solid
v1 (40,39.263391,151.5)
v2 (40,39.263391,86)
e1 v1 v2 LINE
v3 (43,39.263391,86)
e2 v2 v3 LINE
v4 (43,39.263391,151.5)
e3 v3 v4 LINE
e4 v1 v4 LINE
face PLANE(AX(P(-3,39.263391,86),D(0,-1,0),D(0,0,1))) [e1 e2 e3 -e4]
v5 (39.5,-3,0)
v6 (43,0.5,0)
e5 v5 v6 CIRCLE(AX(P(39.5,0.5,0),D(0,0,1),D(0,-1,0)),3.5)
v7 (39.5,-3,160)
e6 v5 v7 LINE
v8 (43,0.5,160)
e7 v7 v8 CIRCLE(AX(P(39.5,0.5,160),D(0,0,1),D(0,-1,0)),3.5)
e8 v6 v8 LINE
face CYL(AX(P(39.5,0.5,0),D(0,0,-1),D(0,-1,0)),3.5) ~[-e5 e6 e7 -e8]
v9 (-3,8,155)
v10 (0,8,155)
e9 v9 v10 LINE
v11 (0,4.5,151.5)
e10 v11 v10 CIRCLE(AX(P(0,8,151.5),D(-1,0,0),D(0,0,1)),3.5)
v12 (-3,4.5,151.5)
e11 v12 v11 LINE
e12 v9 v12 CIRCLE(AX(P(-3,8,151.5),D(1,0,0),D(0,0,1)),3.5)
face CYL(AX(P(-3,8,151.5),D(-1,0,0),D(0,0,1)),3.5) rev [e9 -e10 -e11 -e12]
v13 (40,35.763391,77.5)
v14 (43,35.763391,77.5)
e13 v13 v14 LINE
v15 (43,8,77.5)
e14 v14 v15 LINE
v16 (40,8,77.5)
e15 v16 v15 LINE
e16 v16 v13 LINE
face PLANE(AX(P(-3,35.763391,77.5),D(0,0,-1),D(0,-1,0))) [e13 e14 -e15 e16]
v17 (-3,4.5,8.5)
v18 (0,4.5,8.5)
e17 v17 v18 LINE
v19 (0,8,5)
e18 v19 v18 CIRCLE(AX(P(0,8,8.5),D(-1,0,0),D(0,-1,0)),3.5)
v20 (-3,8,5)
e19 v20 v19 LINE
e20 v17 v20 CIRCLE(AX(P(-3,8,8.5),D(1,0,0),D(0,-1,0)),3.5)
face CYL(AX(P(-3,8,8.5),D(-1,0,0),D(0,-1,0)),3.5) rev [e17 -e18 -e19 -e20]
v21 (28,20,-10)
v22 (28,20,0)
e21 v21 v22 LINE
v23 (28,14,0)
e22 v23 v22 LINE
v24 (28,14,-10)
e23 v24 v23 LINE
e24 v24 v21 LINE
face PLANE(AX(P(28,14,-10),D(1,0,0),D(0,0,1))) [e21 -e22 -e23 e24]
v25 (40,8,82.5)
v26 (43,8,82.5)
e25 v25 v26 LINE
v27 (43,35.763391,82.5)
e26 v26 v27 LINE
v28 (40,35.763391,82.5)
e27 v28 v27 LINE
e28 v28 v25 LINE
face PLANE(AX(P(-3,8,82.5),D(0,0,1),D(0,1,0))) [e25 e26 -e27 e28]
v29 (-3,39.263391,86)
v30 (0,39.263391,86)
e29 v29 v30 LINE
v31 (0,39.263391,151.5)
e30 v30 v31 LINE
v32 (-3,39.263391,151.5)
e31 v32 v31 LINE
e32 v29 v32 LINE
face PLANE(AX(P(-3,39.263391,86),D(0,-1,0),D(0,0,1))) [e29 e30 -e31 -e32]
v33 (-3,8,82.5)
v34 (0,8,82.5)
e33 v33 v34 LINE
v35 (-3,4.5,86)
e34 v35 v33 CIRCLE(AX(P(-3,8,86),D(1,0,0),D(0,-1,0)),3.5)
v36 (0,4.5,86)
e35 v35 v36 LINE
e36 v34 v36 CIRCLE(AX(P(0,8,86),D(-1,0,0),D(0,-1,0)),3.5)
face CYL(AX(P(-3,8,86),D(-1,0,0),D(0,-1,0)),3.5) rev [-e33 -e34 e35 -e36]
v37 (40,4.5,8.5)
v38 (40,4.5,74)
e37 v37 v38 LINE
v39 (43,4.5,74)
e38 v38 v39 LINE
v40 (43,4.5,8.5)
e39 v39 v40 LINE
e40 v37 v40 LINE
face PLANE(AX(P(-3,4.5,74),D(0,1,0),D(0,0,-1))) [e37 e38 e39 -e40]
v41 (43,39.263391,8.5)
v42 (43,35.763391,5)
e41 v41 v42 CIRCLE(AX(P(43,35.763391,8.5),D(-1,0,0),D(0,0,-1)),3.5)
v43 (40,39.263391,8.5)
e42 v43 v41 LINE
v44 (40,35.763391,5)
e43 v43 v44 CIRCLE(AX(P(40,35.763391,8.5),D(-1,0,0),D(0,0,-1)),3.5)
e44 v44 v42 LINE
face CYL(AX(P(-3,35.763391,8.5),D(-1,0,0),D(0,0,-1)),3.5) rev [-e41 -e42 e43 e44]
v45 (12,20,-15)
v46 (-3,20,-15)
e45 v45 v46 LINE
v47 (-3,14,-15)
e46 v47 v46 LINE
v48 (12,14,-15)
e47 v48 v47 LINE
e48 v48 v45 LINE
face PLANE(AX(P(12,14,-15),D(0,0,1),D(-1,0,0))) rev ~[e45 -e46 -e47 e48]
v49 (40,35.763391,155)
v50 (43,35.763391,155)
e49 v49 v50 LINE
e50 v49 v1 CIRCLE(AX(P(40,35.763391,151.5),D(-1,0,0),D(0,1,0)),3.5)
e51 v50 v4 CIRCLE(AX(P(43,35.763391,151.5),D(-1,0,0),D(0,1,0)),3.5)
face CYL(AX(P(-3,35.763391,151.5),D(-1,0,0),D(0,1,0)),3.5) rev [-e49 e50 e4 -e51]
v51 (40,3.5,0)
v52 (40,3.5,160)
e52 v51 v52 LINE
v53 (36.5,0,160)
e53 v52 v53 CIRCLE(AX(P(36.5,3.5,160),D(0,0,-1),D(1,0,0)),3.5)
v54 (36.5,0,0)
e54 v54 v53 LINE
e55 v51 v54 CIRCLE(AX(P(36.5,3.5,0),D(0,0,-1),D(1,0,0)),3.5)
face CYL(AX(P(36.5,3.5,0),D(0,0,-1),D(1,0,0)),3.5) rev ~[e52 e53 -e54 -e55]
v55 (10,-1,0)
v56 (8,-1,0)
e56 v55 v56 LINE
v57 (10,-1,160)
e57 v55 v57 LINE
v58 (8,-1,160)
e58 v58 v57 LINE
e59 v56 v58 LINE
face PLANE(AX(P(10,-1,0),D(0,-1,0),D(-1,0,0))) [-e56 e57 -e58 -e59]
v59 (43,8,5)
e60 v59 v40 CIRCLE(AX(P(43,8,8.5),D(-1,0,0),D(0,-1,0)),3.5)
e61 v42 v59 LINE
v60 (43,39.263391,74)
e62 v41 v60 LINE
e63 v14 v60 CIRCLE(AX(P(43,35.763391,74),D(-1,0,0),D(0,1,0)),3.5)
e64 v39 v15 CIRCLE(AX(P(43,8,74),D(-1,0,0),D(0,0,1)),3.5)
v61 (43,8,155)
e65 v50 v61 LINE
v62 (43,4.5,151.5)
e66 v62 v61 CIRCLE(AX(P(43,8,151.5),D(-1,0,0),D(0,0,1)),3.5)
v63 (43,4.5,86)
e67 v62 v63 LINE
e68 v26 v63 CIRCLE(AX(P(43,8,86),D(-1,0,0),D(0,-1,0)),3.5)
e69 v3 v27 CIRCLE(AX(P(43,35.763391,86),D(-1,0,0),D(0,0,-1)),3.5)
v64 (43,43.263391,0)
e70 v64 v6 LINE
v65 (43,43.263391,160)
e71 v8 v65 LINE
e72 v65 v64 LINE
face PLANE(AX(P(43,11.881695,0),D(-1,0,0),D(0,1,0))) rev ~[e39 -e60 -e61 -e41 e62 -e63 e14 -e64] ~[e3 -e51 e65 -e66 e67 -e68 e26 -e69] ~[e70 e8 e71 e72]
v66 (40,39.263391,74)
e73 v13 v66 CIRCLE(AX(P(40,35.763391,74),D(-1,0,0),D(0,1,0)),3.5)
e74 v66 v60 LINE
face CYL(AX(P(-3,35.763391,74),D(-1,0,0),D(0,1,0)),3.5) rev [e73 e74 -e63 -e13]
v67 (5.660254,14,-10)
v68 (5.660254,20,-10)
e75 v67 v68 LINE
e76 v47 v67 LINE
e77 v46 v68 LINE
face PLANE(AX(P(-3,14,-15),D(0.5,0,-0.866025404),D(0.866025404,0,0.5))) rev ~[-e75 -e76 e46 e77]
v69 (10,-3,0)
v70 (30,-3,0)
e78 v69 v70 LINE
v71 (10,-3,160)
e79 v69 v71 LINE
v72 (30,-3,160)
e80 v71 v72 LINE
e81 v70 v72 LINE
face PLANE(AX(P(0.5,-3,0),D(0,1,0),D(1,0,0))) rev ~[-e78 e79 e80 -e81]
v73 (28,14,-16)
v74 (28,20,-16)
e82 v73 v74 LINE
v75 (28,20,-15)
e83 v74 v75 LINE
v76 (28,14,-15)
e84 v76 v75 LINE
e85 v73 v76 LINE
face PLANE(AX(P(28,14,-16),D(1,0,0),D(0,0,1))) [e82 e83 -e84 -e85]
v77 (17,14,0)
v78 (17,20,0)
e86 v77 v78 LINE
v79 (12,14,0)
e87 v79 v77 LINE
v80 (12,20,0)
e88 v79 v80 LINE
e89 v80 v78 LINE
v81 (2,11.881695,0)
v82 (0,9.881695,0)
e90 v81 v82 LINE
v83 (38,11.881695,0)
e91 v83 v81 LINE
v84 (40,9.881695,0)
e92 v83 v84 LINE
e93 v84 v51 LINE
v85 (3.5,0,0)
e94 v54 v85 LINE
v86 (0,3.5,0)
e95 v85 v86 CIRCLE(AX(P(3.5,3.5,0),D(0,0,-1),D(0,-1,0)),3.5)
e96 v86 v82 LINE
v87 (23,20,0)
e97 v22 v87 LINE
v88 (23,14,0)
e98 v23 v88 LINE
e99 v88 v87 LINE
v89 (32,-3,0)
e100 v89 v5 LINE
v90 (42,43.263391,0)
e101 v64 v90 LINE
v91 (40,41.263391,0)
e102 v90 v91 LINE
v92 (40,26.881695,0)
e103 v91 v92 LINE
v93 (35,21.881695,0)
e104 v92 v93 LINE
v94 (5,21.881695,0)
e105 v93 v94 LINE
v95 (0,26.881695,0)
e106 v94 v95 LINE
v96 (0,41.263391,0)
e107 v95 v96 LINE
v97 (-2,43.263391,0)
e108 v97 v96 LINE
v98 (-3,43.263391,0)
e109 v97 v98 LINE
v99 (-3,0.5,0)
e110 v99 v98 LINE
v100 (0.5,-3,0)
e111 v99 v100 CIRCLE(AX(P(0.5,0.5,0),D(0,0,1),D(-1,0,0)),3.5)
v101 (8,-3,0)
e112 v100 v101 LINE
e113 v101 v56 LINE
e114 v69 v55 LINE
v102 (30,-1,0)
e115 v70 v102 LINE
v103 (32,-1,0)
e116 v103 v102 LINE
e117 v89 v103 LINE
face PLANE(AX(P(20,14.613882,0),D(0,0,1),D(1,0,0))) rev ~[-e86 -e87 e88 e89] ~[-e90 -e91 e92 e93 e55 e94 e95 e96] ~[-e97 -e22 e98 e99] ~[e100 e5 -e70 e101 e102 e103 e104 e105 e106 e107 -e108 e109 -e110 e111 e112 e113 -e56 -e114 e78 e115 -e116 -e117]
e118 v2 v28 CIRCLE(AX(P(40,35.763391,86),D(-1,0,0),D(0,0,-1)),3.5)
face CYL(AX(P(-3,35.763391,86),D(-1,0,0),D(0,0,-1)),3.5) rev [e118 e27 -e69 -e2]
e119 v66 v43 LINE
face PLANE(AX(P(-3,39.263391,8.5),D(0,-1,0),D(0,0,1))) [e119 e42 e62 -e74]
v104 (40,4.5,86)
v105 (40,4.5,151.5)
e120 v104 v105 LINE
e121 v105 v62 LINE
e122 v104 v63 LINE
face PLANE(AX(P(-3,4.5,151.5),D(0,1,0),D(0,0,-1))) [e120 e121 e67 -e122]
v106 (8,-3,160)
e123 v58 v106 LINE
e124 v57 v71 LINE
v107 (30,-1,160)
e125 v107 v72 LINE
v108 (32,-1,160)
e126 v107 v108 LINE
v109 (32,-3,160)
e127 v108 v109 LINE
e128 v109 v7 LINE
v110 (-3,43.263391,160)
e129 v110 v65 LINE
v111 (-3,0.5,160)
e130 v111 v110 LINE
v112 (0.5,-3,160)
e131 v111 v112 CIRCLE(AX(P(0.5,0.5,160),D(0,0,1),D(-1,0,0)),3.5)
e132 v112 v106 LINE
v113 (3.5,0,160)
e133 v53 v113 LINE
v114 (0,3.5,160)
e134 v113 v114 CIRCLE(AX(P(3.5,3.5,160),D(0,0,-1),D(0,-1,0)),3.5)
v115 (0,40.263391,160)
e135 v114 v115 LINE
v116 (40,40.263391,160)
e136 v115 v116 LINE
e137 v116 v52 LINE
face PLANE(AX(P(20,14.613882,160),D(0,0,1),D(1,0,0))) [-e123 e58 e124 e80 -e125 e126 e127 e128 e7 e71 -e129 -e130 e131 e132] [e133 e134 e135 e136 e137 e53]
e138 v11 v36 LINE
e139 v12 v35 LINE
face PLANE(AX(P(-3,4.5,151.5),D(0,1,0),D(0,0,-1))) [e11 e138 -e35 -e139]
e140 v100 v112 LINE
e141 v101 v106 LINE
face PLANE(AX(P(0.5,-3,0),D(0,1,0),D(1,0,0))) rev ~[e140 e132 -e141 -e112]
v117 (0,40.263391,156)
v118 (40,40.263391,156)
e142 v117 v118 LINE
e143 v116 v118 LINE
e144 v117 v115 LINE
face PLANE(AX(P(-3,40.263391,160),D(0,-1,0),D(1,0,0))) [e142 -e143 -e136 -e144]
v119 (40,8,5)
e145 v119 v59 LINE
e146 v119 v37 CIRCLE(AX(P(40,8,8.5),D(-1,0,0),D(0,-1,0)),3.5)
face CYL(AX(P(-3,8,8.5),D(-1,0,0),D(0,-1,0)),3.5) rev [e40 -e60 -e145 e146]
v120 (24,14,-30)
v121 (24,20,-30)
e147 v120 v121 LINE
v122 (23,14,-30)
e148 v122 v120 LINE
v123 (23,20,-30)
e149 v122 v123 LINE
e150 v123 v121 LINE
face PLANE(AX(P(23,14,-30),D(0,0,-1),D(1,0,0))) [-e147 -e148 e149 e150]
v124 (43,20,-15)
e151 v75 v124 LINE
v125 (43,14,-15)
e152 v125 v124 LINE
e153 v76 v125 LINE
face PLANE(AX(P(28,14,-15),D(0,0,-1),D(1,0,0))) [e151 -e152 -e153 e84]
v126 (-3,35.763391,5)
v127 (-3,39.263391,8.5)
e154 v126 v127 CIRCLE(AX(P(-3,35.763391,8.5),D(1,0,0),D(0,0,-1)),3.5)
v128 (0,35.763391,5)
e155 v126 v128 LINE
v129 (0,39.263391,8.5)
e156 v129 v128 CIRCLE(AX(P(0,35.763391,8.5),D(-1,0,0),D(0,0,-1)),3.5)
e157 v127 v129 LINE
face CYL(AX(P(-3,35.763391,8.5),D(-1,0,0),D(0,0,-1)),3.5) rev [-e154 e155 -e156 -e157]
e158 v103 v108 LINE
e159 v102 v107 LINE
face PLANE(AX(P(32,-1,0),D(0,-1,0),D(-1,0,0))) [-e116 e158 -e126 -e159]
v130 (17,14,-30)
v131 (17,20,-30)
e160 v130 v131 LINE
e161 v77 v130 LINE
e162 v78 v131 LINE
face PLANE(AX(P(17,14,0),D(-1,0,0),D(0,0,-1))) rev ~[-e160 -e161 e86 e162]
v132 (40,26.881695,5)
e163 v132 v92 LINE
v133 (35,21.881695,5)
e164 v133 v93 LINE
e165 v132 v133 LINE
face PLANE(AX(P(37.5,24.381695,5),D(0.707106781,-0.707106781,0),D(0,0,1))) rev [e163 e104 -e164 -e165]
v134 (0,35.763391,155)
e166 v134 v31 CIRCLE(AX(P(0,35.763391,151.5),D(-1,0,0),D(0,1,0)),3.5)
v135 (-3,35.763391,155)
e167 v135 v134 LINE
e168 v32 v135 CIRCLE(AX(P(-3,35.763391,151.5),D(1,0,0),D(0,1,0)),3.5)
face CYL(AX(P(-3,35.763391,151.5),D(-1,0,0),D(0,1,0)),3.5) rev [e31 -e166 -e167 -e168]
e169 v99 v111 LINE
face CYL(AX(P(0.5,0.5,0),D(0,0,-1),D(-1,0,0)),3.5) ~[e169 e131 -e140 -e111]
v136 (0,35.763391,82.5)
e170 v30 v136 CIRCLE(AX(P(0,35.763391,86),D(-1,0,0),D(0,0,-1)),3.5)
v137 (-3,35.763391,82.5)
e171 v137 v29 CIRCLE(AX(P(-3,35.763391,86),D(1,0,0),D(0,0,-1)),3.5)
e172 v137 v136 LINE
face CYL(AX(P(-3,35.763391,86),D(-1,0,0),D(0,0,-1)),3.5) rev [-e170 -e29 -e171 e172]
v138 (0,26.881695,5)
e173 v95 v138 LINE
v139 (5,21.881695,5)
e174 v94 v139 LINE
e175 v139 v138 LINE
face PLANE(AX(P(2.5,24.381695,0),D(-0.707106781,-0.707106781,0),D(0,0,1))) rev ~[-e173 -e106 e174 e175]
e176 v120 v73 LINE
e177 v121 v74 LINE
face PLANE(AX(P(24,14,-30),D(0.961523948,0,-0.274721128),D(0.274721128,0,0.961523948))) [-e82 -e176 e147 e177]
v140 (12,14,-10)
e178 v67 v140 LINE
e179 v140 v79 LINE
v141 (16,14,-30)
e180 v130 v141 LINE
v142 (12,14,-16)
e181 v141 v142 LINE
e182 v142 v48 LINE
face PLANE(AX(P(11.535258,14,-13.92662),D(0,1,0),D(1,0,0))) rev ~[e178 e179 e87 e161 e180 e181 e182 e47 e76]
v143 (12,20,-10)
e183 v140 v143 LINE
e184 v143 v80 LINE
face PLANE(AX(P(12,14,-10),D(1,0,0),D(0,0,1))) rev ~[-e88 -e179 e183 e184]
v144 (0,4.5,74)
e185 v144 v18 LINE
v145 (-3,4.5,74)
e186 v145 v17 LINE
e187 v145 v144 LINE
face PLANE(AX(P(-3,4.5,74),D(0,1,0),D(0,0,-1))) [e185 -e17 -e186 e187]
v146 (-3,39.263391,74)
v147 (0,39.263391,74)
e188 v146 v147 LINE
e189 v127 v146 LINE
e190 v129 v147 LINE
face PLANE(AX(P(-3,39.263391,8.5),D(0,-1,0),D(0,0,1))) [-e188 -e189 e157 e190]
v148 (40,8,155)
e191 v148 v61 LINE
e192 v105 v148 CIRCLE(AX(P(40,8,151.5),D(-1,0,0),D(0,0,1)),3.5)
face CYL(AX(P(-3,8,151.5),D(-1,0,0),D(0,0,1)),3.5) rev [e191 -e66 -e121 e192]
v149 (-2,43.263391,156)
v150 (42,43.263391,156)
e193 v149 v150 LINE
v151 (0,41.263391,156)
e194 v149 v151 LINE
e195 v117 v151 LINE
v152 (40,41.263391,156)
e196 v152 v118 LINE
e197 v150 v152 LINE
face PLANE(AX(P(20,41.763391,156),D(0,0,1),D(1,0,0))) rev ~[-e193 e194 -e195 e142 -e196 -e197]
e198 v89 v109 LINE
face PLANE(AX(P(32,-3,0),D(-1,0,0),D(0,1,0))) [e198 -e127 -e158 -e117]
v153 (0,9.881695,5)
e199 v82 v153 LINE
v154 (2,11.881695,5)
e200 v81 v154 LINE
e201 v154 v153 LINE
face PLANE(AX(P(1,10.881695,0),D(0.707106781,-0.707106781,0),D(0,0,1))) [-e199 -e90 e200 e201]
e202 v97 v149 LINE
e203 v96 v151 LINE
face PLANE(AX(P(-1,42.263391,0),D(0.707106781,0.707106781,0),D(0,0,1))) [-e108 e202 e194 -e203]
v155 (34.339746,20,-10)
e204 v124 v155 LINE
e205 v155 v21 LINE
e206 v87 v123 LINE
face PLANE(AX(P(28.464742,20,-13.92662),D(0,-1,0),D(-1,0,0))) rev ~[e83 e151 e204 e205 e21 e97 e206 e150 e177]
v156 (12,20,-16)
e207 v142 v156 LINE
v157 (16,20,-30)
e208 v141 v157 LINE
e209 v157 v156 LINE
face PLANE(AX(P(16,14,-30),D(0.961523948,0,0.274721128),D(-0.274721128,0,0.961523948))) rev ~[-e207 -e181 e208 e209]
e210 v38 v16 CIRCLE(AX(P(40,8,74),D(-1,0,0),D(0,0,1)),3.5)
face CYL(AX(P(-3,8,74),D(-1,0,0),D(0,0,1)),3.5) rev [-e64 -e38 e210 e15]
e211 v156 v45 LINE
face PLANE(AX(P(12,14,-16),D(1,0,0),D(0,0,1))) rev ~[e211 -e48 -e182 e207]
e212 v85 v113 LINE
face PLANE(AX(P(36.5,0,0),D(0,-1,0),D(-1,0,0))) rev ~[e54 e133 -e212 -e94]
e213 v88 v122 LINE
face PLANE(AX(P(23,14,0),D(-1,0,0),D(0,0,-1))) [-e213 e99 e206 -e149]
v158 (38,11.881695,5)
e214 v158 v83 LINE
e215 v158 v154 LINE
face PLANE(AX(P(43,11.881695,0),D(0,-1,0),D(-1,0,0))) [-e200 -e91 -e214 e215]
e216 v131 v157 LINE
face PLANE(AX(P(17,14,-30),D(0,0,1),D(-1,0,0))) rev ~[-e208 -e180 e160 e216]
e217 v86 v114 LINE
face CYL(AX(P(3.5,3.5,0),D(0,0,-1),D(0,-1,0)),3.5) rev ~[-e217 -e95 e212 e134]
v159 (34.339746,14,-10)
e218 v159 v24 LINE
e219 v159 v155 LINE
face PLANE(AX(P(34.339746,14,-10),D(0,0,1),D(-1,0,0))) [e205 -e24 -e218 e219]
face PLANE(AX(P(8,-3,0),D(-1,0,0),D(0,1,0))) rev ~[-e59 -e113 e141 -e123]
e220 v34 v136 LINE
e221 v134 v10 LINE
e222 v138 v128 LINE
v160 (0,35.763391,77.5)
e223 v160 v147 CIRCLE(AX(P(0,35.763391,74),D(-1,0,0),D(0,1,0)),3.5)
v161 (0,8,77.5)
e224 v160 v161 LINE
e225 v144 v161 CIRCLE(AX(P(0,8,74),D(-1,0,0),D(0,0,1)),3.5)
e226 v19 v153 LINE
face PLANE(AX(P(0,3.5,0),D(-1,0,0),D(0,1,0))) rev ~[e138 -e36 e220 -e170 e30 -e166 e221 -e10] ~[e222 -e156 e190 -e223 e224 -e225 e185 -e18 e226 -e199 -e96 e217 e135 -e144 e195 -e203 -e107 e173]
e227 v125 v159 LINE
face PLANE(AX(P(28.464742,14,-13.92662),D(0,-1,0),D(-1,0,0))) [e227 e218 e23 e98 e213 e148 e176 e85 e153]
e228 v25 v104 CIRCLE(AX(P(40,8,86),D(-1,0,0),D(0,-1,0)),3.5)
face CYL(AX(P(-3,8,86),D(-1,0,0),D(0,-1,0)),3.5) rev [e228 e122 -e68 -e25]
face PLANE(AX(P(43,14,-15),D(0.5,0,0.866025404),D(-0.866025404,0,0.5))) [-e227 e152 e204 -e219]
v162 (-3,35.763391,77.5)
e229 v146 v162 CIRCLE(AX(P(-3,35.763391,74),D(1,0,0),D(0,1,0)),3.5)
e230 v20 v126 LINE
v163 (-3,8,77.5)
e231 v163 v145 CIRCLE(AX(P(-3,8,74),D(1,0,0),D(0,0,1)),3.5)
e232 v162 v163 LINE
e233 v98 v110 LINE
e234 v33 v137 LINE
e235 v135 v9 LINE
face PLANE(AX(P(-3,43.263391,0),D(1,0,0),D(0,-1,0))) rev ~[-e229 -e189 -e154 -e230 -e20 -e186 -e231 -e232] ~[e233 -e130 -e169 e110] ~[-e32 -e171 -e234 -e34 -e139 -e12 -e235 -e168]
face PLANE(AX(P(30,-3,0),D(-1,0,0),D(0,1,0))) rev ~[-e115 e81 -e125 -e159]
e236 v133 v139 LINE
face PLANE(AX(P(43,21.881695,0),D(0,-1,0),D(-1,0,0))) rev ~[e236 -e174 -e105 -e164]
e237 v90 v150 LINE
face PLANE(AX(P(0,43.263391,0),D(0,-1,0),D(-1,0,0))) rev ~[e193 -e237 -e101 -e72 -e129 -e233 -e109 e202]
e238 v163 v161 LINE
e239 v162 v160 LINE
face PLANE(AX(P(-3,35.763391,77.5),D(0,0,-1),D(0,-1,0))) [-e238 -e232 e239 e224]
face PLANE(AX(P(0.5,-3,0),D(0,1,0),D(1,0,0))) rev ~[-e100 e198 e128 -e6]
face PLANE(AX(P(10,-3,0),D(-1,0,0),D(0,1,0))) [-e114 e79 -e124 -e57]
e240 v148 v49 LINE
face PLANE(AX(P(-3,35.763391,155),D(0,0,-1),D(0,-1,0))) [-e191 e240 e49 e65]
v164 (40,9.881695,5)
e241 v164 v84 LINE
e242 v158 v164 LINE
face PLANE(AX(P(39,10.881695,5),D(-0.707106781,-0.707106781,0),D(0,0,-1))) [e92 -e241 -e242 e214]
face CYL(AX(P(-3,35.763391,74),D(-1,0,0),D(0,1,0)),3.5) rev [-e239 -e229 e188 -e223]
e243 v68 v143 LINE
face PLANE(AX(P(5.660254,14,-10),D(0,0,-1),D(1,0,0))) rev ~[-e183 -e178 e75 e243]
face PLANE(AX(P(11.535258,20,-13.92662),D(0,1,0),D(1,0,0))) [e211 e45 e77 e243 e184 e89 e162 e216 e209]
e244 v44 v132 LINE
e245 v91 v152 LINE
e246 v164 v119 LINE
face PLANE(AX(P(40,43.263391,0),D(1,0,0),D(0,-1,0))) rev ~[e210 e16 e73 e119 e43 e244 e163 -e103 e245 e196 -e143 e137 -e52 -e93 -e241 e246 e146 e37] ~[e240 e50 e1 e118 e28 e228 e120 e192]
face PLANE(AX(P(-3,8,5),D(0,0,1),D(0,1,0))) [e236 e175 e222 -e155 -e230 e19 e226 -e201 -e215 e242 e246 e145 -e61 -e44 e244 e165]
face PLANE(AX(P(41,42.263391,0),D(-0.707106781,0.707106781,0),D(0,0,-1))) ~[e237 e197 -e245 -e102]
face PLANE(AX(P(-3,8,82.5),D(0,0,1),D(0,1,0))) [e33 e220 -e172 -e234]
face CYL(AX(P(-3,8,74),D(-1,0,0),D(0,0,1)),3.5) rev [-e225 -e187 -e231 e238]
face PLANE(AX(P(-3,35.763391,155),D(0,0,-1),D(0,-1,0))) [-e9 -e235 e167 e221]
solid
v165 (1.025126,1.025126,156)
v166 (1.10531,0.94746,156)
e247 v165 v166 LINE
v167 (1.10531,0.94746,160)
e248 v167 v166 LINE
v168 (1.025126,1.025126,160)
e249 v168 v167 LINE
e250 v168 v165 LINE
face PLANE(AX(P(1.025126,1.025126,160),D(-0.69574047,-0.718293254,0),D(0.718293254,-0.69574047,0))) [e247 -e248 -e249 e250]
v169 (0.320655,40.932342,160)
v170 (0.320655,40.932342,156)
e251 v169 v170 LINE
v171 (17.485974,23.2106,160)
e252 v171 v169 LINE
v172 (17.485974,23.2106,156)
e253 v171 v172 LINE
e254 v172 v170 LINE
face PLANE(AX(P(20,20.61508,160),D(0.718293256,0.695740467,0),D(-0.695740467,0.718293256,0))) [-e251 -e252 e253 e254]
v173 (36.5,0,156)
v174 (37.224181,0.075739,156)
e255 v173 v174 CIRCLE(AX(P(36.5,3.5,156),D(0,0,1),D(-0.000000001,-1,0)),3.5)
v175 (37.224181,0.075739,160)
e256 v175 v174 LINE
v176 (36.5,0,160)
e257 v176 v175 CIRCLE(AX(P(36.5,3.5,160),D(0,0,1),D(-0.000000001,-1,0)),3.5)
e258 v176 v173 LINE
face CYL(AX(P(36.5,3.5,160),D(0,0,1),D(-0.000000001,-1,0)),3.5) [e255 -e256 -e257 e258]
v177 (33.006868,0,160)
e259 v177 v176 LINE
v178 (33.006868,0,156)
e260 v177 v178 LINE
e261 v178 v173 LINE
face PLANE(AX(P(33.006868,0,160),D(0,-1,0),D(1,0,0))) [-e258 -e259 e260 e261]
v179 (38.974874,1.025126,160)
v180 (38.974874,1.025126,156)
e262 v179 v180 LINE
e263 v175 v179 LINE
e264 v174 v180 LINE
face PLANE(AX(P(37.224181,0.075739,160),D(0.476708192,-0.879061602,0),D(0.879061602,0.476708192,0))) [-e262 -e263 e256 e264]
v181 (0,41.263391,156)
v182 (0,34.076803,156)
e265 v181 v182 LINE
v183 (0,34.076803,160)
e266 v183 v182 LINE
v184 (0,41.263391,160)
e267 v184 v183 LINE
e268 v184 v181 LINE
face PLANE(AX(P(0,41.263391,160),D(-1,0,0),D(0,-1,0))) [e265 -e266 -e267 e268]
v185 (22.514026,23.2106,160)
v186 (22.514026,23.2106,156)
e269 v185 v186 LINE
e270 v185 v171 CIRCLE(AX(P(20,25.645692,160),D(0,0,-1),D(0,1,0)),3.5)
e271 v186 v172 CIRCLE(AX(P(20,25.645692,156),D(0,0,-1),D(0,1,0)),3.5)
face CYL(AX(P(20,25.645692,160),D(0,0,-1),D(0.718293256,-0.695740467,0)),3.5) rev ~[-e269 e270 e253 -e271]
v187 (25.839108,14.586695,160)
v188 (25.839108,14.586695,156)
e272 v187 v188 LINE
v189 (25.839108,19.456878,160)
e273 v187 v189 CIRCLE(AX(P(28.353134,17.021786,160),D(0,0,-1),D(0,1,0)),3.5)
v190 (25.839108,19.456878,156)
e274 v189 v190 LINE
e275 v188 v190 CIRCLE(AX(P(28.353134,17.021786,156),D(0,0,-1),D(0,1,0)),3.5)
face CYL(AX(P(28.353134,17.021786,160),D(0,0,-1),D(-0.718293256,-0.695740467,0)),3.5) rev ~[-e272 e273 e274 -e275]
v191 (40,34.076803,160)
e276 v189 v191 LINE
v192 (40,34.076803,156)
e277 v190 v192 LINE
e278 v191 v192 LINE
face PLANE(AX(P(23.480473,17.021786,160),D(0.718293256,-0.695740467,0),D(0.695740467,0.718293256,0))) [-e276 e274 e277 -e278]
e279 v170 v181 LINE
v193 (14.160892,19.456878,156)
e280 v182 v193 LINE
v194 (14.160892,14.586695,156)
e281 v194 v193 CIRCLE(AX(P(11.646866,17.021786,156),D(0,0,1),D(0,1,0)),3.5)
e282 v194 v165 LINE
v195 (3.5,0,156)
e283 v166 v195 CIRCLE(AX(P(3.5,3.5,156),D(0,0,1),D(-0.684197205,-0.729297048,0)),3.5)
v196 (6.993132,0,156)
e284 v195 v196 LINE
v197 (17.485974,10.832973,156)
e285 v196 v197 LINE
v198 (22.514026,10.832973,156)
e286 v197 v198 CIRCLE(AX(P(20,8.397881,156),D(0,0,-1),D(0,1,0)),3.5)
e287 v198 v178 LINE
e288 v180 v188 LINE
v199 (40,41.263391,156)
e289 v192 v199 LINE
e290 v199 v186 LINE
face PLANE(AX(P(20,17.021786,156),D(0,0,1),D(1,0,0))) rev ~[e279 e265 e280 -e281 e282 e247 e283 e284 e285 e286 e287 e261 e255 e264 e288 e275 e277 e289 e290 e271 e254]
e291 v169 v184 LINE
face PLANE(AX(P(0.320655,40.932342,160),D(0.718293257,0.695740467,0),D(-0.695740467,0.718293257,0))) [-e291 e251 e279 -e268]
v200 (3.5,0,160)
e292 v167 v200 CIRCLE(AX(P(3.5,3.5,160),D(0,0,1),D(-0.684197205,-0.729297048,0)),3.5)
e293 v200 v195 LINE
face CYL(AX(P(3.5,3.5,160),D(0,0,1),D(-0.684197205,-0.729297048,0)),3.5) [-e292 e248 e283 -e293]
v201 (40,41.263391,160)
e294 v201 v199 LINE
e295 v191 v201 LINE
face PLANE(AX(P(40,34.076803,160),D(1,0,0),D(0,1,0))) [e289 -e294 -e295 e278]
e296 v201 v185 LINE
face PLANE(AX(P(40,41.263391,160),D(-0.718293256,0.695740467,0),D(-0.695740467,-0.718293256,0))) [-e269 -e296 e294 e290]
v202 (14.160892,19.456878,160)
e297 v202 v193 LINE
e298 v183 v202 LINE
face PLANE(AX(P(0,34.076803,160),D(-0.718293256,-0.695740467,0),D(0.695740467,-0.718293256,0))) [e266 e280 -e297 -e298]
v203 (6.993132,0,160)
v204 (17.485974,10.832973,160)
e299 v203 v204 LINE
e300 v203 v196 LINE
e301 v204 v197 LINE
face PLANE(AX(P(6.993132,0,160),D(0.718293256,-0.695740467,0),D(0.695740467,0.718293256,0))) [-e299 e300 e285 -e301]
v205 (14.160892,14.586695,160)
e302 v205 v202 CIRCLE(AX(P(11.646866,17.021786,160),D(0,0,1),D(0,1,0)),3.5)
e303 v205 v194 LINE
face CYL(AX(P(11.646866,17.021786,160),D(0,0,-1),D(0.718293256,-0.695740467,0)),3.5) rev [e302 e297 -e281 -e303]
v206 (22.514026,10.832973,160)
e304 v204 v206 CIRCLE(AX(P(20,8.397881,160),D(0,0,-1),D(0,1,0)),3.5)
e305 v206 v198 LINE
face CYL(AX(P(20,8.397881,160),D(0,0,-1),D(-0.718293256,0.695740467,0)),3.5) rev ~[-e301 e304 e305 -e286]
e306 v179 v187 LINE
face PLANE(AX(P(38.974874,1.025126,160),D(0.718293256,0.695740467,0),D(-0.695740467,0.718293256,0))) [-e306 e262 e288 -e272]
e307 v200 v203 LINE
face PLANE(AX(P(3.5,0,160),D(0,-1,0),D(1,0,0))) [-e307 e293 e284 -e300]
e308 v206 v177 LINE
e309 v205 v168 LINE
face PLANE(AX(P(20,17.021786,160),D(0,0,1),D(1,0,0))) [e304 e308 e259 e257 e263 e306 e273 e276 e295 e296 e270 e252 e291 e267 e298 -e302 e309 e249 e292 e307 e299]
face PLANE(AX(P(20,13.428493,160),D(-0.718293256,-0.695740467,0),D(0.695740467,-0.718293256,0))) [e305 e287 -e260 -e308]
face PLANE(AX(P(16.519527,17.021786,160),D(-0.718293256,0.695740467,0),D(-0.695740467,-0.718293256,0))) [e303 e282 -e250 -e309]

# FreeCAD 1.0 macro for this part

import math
import FreeCAD as App
import Part
import Sketcher
from FreeCAD import Vector
Q = App.Units.Quantity


def edges_at(feature, points):
    """Names of the edges that pass closest to the given points."""
    edges = feature.Shape.Edges
    near = lambda p: min(range(len(edges)), key=lambda i: edges[i].distToShape(Part.Vertex(*p))[0])
    return sorted({f"Edge{near(p) + 1}" for p in points})


def add_polygon(sketch, points):
    """Adds a closed chain of lines whose ends are joined by coincident constraints."""
    first, n = sketch.GeometryCount, len(points)
    for a, b in zip(points, points[1:] + points[:1]):
        sketch.addGeometry(Part.LineSegment(App.Vector(*a, 0), App.Vector(*b, 0)), False)
    for i in range(n):
        sketch.addConstraint(Sketcher.Constraint("Coincident", first + i, 2, first + (i + 1) % n, 1))

doc = App.newDocument("Part")
params = doc.addObject("Spreadsheet::Sheet", "Params")
for row, (alias, value) in enumerate([
    ("sketch1_radius", "3.5 mm"),
    ("sketch1_width", "3 mm"),
    ("sketch1_width2", "39 mm"),
    ("pad1_length", "160 mm"),
    ("sketch2_radius", "3.5 mm"),
    ("sketch2_height", "65.5 mm"),
    ("pocket1_length", "160 mm"),
    ("chamfer_size", "2 mm"),
    ("sketch3_width", "46 mm"),
    ("sketch3_height", "3 mm"),
    ("pad2_length", "4 mm"),
    ("sketch4_width", "46 mm"),
    ("sketch4_height", "10 mm"),
    ("pad3_length", "5 mm"),
    ("chamfer2_size", "2 mm"),
    ("sketch5_width", "15 mm"),
    ("sketch5_width2", "1 mm"),
    ("sketch5_width3", "5 mm"),
    ("sketch5_height", "30 mm"),
    ("sketch5_height2", "10 mm"),
    ("pad4_length", "6 mm"),
    ("chamfer3_size", "5 mm"),
    ("sketch6_width", "2 mm"),
    ("sketch7_radius", "3.5 mm"),
    ("pad5_length", "4 mm"),
    ("fillet_radius", "3.5 mm"),
], start=1):
    params.set(f"A{row}", alias)
    params.set(f"B{row}", "=" + value)
    params.setAlias(f"B{row}", alias)

body = doc.addObject("PartDesign::Body", "Body")

# Sketch on XY plane
sketch1 = body.newObject("Sketcher::SketchObject", "Sketch")
sketch1.AttachmentSupport = (doc.getObject("XY_Plane"), [""])
sketch1.MapMode = "FlatFace"
sketch1.addGeometry(Part.LineSegment(Vector(0, 43.263391, 0), Vector(-3, 43.263391, 0)), False)
sketch1.addGeometry(Part.LineSegment(Vector(-3, 43.263391, 0), Vector(-3, 0.5, 0)), False)
sketch1.addGeometry(Part.ArcOfCircle(Part.Circle(Vector(0.5, 0.5, 0), Vector(0, 0, 1), 3.5), math.radians(-180), math.radians(-90)), False)
sketch1.addGeometry(Part.LineSegment(Vector(0.5, -3, 0), Vector(39.5, -3, 0)), False)
sketch1.addGeometry(Part.ArcOfCircle(Part.Circle(Vector(39.5, 0.5, 0), Vector(0, 0, 1), 3.5), math.radians(-90), math.radians(0)), False)
sketch1.addGeometry(Part.LineSegment(Vector(43, 0.5, 0), Vector(43, 43.263391, 0)), False)
sketch1.addGeometry(Part.LineSegment(Vector(43, 43.263391, 0), Vector(40, 43.263391, 0)), False)
sketch1.addGeometry(Part.LineSegment(Vector(40, 43.263391, 0), Vector(40, 3.5, 0)), False)
sketch1.addGeometry(Part.ArcOfCircle(Part.Circle(Vector(36.5, 3.5, 0), Vector(0, 0, 1), 3.5), math.radians(-90), math.radians(0)), False)
sketch1.addGeometry(Part.LineSegment(Vector(36.5, 0, 0), Vector(3.5, 0, 0)), False)
sketch1.addGeometry(Part.ArcOfCircle(Part.Circle(Vector(3.5, 3.5, 0), Vector(0, 0, 1), 3.5), math.radians(-180), math.radians(-90)), False)
sketch1.addGeometry(Part.LineSegment(Vector(0, 3.5, 0), Vector(0, 43.263391, 0)), False)
sketch1.addConstraint(Sketcher.Constraint("Coincident", 0, 2, 1, 1))
sketch1.addConstraint(Sketcher.Constraint("Tangent", 1, 2, 2, 1))
sketch1.addConstraint(Sketcher.Constraint("Tangent", 2, 2, 3, 1))
sketch1.addConstraint(Sketcher.Constraint("Tangent", 3, 2, 4, 1))
sketch1.addConstraint(Sketcher.Constraint("Tangent", 4, 2, 5, 1))
sketch1.addConstraint(Sketcher.Constraint("Coincident", 5, 2, 6, 1))
sketch1.addConstraint(Sketcher.Constraint("Coincident", 6, 2, 7, 1))
sketch1.addConstraint(Sketcher.Constraint("Tangent", 7, 2, 8, 2))
sketch1.addConstraint(Sketcher.Constraint("Tangent", 8, 1, 9, 1))
sketch1.addConstraint(Sketcher.Constraint("Tangent", 9, 2, 10, 2))
sketch1.addConstraint(Sketcher.Constraint("Tangent", 10, 1, 11, 1))
sketch1.addConstraint(Sketcher.Constraint("Coincident", 11, 2, 0, 1))
sketch1.addConstraint(Sketcher.Constraint("Horizontal", 0))
sketch1.addConstraint(Sketcher.Constraint("Vertical", 1))
sketch1.addConstraint(Sketcher.Constraint("Horizontal", 3))
sketch1.addConstraint(Sketcher.Constraint("Vertical", 5))
sketch1.addConstraint(Sketcher.Constraint("Horizontal", 6))
sketch1.addConstraint(Sketcher.Constraint("Vertical", 7))
sketch1.addConstraint(Sketcher.Constraint("Horizontal", 9))
sketch1.addConstraint(Sketcher.Constraint("Vertical", 11))
sketch1.addConstraint(Sketcher.Constraint("Equal", 2, 4))
sketch1.addConstraint(Sketcher.Constraint("Equal", 4, 8))
sketch1.addConstraint(Sketcher.Constraint("Equal", 8, 10))
sketch1.addConstraint(Sketcher.Constraint("PointOnObject", 8, 1, -1))
sketch1.addConstraint(Sketcher.Constraint("PointOnObject", 10, 1, -2))
sketch1.addConstraint(Sketcher.Constraint("Horizontal", 0, 2, 5, 2))
sketch1.addConstraint(Sketcher.Constraint("Equal", 0, 6))
sketch1.addConstraint(Sketcher.Constraint("Radius", 2, 3.5))
sketch1.addConstraint(Sketcher.Constraint("DistanceX", 0, 2, 0, 1, 3.0))
sketch1.addConstraint(Sketcher.Constraint("DistanceX", 3, 1, 3, 2, 39.0))
sketch1.addConstraint(Sketcher.Constraint("DistanceY", 2, 2, -1, 1, 3.0))
sketch1.addConstraint(Sketcher.Constraint("DistanceY", 1, 2, 1, 1, 42.763391))
sketch1.setExpression("Constraints[27]", "Params.sketch1_radius")
sketch1.setExpression("Constraints[28]", "Params.sketch1_width")
sketch1.setExpression("Constraints[29]", "Params.sketch1_width2")
pad1 = body.newObject("PartDesign::Pad", "Pad")
pad1.Profile = sketch1
pad1.setExpression("Length", "Params.pad1_length")

# Sketch on YZ plane
sketch2 = body.newObject("Sketcher::SketchObject", "Sketch001")
sketch2.AttachmentSupport = (doc.getObject("YZ_Plane"), [""])
sketch2.MapMode = "FlatFace"
sketch2.AttachmentOffset = App.Placement(Vector(0, 0, -3), App.Rotation())
sketch2.addGeometry(Part.LineSegment(Vector(39.263391, 74, 0), Vector(39.263391, 8.5, 0)), False)
sketch2.addGeometry(Part.ArcOfCircle(Part.Circle(Vector(35.763391, 8.5, 0), Vector(0, 0, 1), 3.5), math.radians(-90), math.radians(0)), False)
sketch2.addGeometry(Part.LineSegment(Vector(35.763391, 5, 0), Vector(8, 5, 0)), False)
sketch2.addGeometry(Part.ArcOfCircle(Part.Circle(Vector(8, 8.5, 0), Vector(0, 0, 1), 3.5), math.radians(-180), math.radians(-90)), False)
sketch2.addGeometry(Part.LineSegment(Vector(4.5, 8.5, 0), Vector(4.5, 74, 0)), False)
sketch2.addGeometry(Part.ArcOfCircle(Part.Circle(Vector(8, 74, 0), Vector(0, 0, 1), 3.5), math.radians(90), math.radians(180)), False)
sketch2.addGeometry(Part.LineSegment(Vector(8, 77.5, 0), Vector(35.763391, 77.5, 0)), False)
sketch2.addGeometry(Part.ArcOfCircle(Part.Circle(Vector(35.763391, 74, 0), Vector(0, 0, 1), 3.5), math.radians(0), math.radians(90)), False)
sketch2.addGeometry(Part.LineSegment(Vector(39.263391, 151.5, 0), Vector(39.263391, 86, 0)), False)
sketch2.addGeometry(Part.ArcOfCircle(Part.Circle(Vector(35.763391, 86, 0), Vector(0, 0, 1), 3.5), math.radians(-90), math.radians(0)), False)
sketch2.addGeometry(Part.LineSegment(Vector(35.763391, 82.5, 0), Vector(8, 82.5, 0)), False)
sketch2.addGeometry(Part.ArcOfCircle(Part.Circle(Vector(8, 86, 0), Vector(0, 0, 1), 3.5), math.radians(-180), math.radians(-90)), False)
sketch2.addGeometry(Part.LineSegment(Vector(4.5, 86, 0), Vector(4.5, 151.5, 0)), False)
sketch2.addGeometry(Part.ArcOfCircle(Part.Circle(Vector(8, 151.5, 0), Vector(0, 0, 1), 3.5), math.radians(90), math.radians(180)), False)
sketch2.addGeometry(Part.LineSegment(Vector(8, 155, 0), Vector(35.763391, 155, 0)), False)
sketch2.addGeometry(Part.ArcOfCircle(Part.Circle(Vector(35.763391, 151.5, 0), Vector(0, 0, 1), 3.5), math.radians(0), math.radians(90)), False)
sketch2.addConstraint(Sketcher.Constraint("Tangent", 0, 2, 1, 2))
sketch2.addConstraint(Sketcher.Constraint("Tangent", 1, 1, 2, 1))
sketch2.addConstraint(Sketcher.Constraint("Tangent", 2, 2, 3, 2))
sketch2.addConstraint(Sketcher.Constraint("Tangent", 3, 1, 4, 1))
sketch2.addConstraint(Sketcher.Constraint("Tangent", 4, 2, 5, 2))
sketch2.addConstraint(Sketcher.Constraint("Tangent", 5, 1, 6, 1))
sketch2.addConstraint(Sketcher.Constraint("Tangent", 6, 2, 7, 2))
sketch2.addConstraint(Sketcher.Constraint("Tangent", 7, 1, 0, 1))
sketch2.addConstraint(Sketcher.Constraint("Tangent", 8, 2, 9, 2))
sketch2.addConstraint(Sketcher.Constraint("Tangent", 9, 1, 10, 1))
sketch2.addConstraint(Sketcher.Constraint("Tangent", 10, 2, 11, 2))
sketch2.addConstraint(Sketcher.Constraint("Tangent", 11, 1, 12, 1))
sketch2.addConstraint(Sketcher.Constraint("Tangent", 12, 2, 13, 2))
sketch2.addConstraint(Sketcher.Constraint("Tangent", 13, 1, 14, 1))
sketch2.addConstraint(Sketcher.Constraint("Tangent", 14, 2, 15, 2))
sketch2.addConstraint(Sketcher.Constraint("Tangent", 15, 1, 8, 1))
sketch2.addConstraint(Sketcher.Constraint("Vertical", 0))
sketch2.addConstraint(Sketcher.Constraint("Horizontal", 2))
sketch2.addConstraint(Sketcher.Constraint("Vertical", 4))
sketch2.addConstraint(Sketcher.Constraint("Horizontal", 6))
sketch2.addConstraint(Sketcher.Constraint("Vertical", 8))
sketch2.addConstraint(Sketcher.Constraint("Horizontal", 10))
sketch2.addConstraint(Sketcher.Constraint("Vertical", 12))
sketch2.addConstraint(Sketcher.Constraint("Horizontal", 14))
sketch2.addConstraint(Sketcher.Constraint("Equal", 1, 3))
sketch2.addConstraint(Sketcher.Constraint("Equal", 3, 5))
sketch2.addConstraint(Sketcher.Constraint("Equal", 5, 7))
sketch2.addConstraint(Sketcher.Constraint("Equal", 7, 9))
sketch2.addConstraint(Sketcher.Constraint("Equal", 9, 11))
sketch2.addConstraint(Sketcher.Constraint("Equal", 11, 13))
sketch2.addConstraint(Sketcher.Constraint("Equal", 13, 15))
sketch2.addConstraint(Sketcher.Constraint("Vertical", 7, 3, 9, 3))
sketch2.addConstraint(Sketcher.Constraint("Vertical", 5, 3, 11, 3))
sketch2.addConstraint(Sketcher.Constraint("Equal", 4, 8))
sketch2.addConstraint(Sketcher.Constraint("Radius", 1, 3.5))
sketch2.addConstraint(Sketcher.Constraint("DistanceY", 0, 2, 0, 1, 65.5))
sketch2.addConstraint(Sketcher.Constraint("DistanceX", -1, 1, 3, 3, 8.0))
sketch2.addConstraint(Sketcher.Constraint("DistanceY", -1, 1, 5, 3, 74.0))
sketch2.addConstraint(Sketcher.Constraint("DistanceY", -1, 1, 9, 3, 86.0))
sketch2.addConstraint(Sketcher.Constraint("DistanceX", 2, 2, 2, 1, 27.763391))
sketch2.setExpression("Constraints[34]", "Params.sketch2_radius")
sketch2.setExpression("Constraints[35]", "Params.sketch2_height")
pocket1 = body.newObject("PartDesign::Pocket", "Pocket")
pocket1.Profile = sketch2
pocket1.setExpression("Length", "Params.pocket1_length")
pocket1.Reversed = True
doc.recompute()

chamfer = body.newObject("PartDesign::Chamfer", "Chamfer")
chamfer.Base = (pocket1, edges_at(pocket1, [(40, 43.263, 80), (0, 43.263, 80)]))
chamfer.setExpression("Size", "Params.chamfer_size")

# Sketch on XY plane
sketch3 = body.newObject("Sketcher::SketchObject", "Sketch002")
sketch3.AttachmentSupport = (doc.getObject("XY_Plane"), [""])
sketch3.MapMode = "FlatFace"
sketch3.AttachmentOffset = App.Placement(Vector(0, 0, 160), App.Rotation())
add_polygon(sketch3, [(-3, 43.263391), (-3, 40.263391), (43, 40.263391), (43, 43.263391)])  # lines 0-3
sketch3.addConstraint(Sketcher.Constraint("Vertical", 0))
sketch3.addConstraint(Sketcher.Constraint("Horizontal", 1))
sketch3.addConstraint(Sketcher.Constraint("Vertical", 2))
sketch3.addConstraint(Sketcher.Constraint("Horizontal", 3))
sketch3.addConstraint(Sketcher.Constraint("DistanceX", 1, 1, 1, 2, 46.0))
sketch3.addConstraint(Sketcher.Constraint("DistanceY", 0, 2, 0, 1, 3.0))
sketch3.addConstraint(Sketcher.Constraint("DistanceX", 0, 2, -1, 1, 3.0))
sketch3.addConstraint(Sketcher.Constraint("DistanceY", -1, 1, 0, 2, 40.263391))
sketch3.setExpression("Constraints[8]", "Params.sketch3_width")
sketch3.setExpression("Constraints[9]", "Params.sketch3_height")
pad2 = body.newObject("PartDesign::Pad", "Pad001")
pad2.Profile = sketch3
pad2.setExpression("Length", "Params.pad2_length")
pad2.Reversed = True

# Sketch on XY plane
sketch4 = body.newObject("Sketcher::SketchObject", "Sketch003")
sketch4.AttachmentSupport = (doc.getObject("XY_Plane"), [""])
sketch4.MapMode = "FlatFace"
add_polygon(sketch4, [(43, 21.881695), (43, 11.881695), (-3, 11.881695), (-3, 21.881695)])  # lines 0-3
sketch4.addConstraint(Sketcher.Constraint("Vertical", 0))
sketch4.addConstraint(Sketcher.Constraint("Horizontal", 1))
sketch4.addConstraint(Sketcher.Constraint("Vertical", 2))
sketch4.addConstraint(Sketcher.Constraint("Horizontal", 3))
sketch4.addConstraint(Sketcher.Constraint("DistanceX", 1, 2, 1, 1, 46.0))
sketch4.addConstraint(Sketcher.Constraint("DistanceY", 0, 2, 0, 1, 10.0))
sketch4.addConstraint(Sketcher.Constraint("DistanceX", -1, 1, 0, 2, 43.0))
sketch4.addConstraint(Sketcher.Constraint("DistanceY", -1, 1, 0, 2, 11.881695))
sketch4.setExpression("Constraints[8]", "Params.sketch4_width")
sketch4.setExpression("Constraints[9]", "Params.sketch4_height")
pad3 = body.newObject("PartDesign::Pad", "Pad002")
pad3.Profile = sketch4
pad3.setExpression("Length", "Params.pad3_length")
doc.recompute()

chamfer2 = body.newObject("PartDesign::Chamfer", "Chamfer001")
chamfer2.Base = (pad3, edges_at(pad3, [(0, 11.882, 2.5), (40, 11.882, 2.5)]))
chamfer2.setExpression("Size", "Params.chamfer2_size")

# Sketch on XZ plane
sketch5 = body.newObject("Sketcher::SketchObject", "Sketch004")
sketch5.AttachmentSupport = (doc.getObject("XZ_Plane"), [""])
sketch5.MapMode = "FlatFace"
sketch5.AttachmentOffset = App.Placement(Vector(0, 0, -14), App.Rotation())
add_polygon(sketch5, [(34.339746, -10), (43, -15), (28, -15), (28, -16), (24, -30), (23, -30), (23, 0), (28, 0), (28, -10)])  # lines 0-8
add_polygon(sketch5, [(17, 0), (17, -30), (16, -30), (12, -16), (12, -15), (-3, -15), (5.660254, -10), (12, -10), (12, 0)])  # lines 9-17
sketch5.addConstraint(Sketcher.Constraint("Horizontal", 1))
sketch5.addConstraint(Sketcher.Constraint("Vertical", 2))
sketch5.addConstraint(Sketcher.Constraint("Horizontal", 4))
sketch5.addConstraint(Sketcher.Constraint("Vertical", 5))
sketch5.addConstraint(Sketcher.Constraint("Horizontal", 6))
sketch5.addConstraint(Sketcher.Constraint("Vertical", 7))
sketch5.addConstraint(Sketcher.Constraint("Horizontal", 8))
sketch5.addConstraint(Sketcher.Constraint("Vertical", 9))
sketch5.addConstraint(Sketcher.Constraint("Horizontal", 10))
sketch5.addConstraint(Sketcher.Constraint("Vertical", 12))
sketch5.addConstraint(Sketcher.Constraint("Horizontal", 13))
sketch5.addConstraint(Sketcher.Constraint("Horizontal", 15))
sketch5.addConstraint(Sketcher.Constraint("Vertical", 16))
sketch5.addConstraint(Sketcher.Constraint("Horizontal", 17))
sketch5.addConstraint(Sketcher.Constraint("PointOnObject", 5, 2, -1))
sketch5.addConstraint(Sketcher.Constraint("PointOnObject", 16, 2, -1))
sketch5.addConstraint(Sketcher.Constraint("Horizontal", 4, 2, 9, 2))
sketch5.addConstraint(Sketcher.Constraint("Horizontal", 2, 2, 11, 2))
sketch5.addConstraint(Sketcher.Constraint("Horizontal", 1, 2, 12, 2))
sketch5.addConstraint(Sketcher.Constraint("Horizontal", 8, 2, 14, 2))
sketch5.addConstraint(Sketcher.Constraint("Vertical", 2, 2, 6, 2))
sketch5.addConstraint(Sketcher.Constraint("Vertical", 12, 2, 15, 2))
sketch5.addConstraint(Sketcher.Constraint("Equal", 4, 10))
sketch5.addConstraint(Sketcher.Constraint("Equal", 1, 13))
sketch5.addConstraint(Sketcher.Constraint("Equal", 8, 15))
sketch5.addConstraint(Sketcher.Constraint("Equal", 6, 17))
sketch5.addConstraint(Sketcher.Constraint("Equal", 10, 2))
sketch5.addConstraint(Sketcher.Constraint("DistanceX", 1, 2, 1, 1, 15.0))
sketch5.addConstraint(Sketcher.Constraint("DistanceX", 4, 2, 4, 1, 1.0))
sketch5.addConstraint(Sketcher.Constraint("DistanceX", 6, 1, 6, 2, 5.0))
sketch5.addConstraint(Sketcher.Constraint("DistanceY", 5, 1, 5, 2, 30.0))
sketch5.addConstraint(Sketcher.Constraint("DistanceY", 7, 2, 7, 1, 10.0))
sketch5.addConstraint(Sketcher.Constraint("Angle", 0, Q("-30 deg")))
sketch5.addConstraint(Sketcher.Constraint("Distance", 0, 10.0))
sketch5.addConstraint(Sketcher.Constraint("DistanceX", -1, 1, 0, 2, 43.0))
sketch5.addConstraint(Sketcher.Constraint("DistanceX", -1, 1, 9, 2, 17.0))
sketch5.setExpression("Constraints[45]", "Params.sketch5_width")
sketch5.setExpression("Constraints[46]", "Params.sketch5_width2")
sketch5.setExpression("Constraints[47]", "Params.sketch5_width3")
sketch5.setExpression("Constraints[48]", "Params.sketch5_height")
sketch5.setExpression("Constraints[49]", "Params.sketch5_height2")
pad4 = body.newObject("PartDesign::Pad", "Pad003")
pad4.Profile = sketch5
pad4.setExpression("Length", "Params.pad4_length")
pad4.Reversed = True
doc.recompute()

chamfer3 = body.newObject("PartDesign::Chamfer", "Chamfer002")
chamfer3.Base = (pad4, edges_at(pad4, [(0, 21.882, 2.5), (40, 21.882, 2.5)]))
chamfer3.setExpression("Size", "Params.chamfer3_size")

# Sketch on XY plane
sketch6 = body.newObject("Sketcher::SketchObject", "Sketch005")
sketch6.AttachmentSupport = (doc.getObject("XY_Plane"), [""])
sketch6.MapMode = "FlatFace"
add_polygon(sketch6, [(10, -1), (10, -3), (8, -3), (8, -1)])  # lines 0-3
add_polygon(sketch6, [(32, -1), (32, -3), (30, -3), (30, -1)])  # lines 4-7
sketch6.addConstraint(Sketcher.Constraint("Vertical", 0))
sketch6.addConstraint(Sketcher.Constraint("Horizontal", 1))
sketch6.addConstraint(Sketcher.Constraint("Vertical", 2))
sketch6.addConstraint(Sketcher.Constraint("Horizontal", 3))
sketch6.addConstraint(Sketcher.Constraint("Vertical", 4))
sketch6.addConstraint(Sketcher.Constraint("Horizontal", 5))
sketch6.addConstraint(Sketcher.Constraint("Vertical", 6))
sketch6.addConstraint(Sketcher.Constraint("Horizontal", 7))
sketch6.addConstraint(Sketcher.Constraint("Horizontal", 1, 2, 4, 2))
sketch6.addConstraint(Sketcher.Constraint("Horizontal", 3, 2, 6, 2))
sketch6.addConstraint(Sketcher.Constraint("Equal", 3, 5))
sketch6.addConstraint(Sketcher.Constraint("Equal", 7, 0))
sketch6.addConstraint(Sketcher.Constraint("DistanceX", 1, 2, 1, 1, 2.0))
sketch6.addConstraint(Sketcher.Constraint("DistanceX", -1, 1, 0, 2, 10.0))
sketch6.addConstraint(Sketcher.Constraint("DistanceY", 0, 2, -1, 1, 3.0))
sketch6.addConstraint(Sketcher.Constraint("DistanceX", -1, 1, 4, 2, 32.0))
sketch6.setExpression("Constraints[20]", "Params.sketch6_width")
pocket2 = body.newObject("PartDesign::Pocket", "Pocket001")
pocket2.Profile = sketch6
pocket2.Type = "ThroughAll"
pocket2.Reversed = True
body2 = doc.addObject("PartDesign::Body", "Body001")

# Sketch on XY plane
sketch7 = body2.newObject("Sketcher::SketchObject", "Sketch006")
sketch7.AttachmentSupport = (doc.getObject("XY_Plane001"), [""])
sketch7.MapMode = "FlatFace"
sketch7.AttachmentOffset = App.Placement(Vector(0, 0, 160), App.Rotation())
sketch7.addGeometry(Part.LineSegment(Vector(16.519527, 17.021786, 0), Vector(1.025126, 1.025126, 0)), False)
sketch7.addGeometry(Part.LineSegment(Vector(1.025126, 1.025126, 0), Vector(1.10531, 0.94746, 0)), False)
sketch7.addGeometry(Part.ArcOfCircle(Part.Circle(Vector(3.5, 3.5, 0), Vector(0, 0, 1), 3.5), math.radians(-133.172505), math.radians(-90)), False)
sketch7.addGeometry(Part.LineSegment(Vector(3.5, 0, 0), Vector(6.993132, 0, 0)), False)
sketch7.addGeometry(Part.LineSegment(Vector(6.993132, 0, 0), Vector(20, 13.428493, 0)), False)
sketch7.addGeometry(Part.LineSegment(Vector(20, 13.428493, 0), Vector(33.006868, 0, 0)), False)
sketch7.addGeometry(Part.LineSegment(Vector(33.006868, 0, 0), Vector(36.5, 0, 0)), False)
sketch7.addGeometry(Part.ArcOfCircle(Part.Circle(Vector(36.5, 3.5, 0), Vector(0, 0, 1), 3.5), math.radians(-90), math.radians(-78.058743)), False)
sketch7.addGeometry(Part.LineSegment(Vector(37.224181, 0.075739, 0), Vector(38.974874, 1.025126, 0)), False)
sketch7.addGeometry(Part.LineSegment(Vector(38.974874, 1.025126, 0), Vector(23.480473, 17.021786, 0)), False)
sketch7.addGeometry(Part.LineSegment(Vector(23.480473, 17.021786, 0), Vector(40, 34.076803, 0)), False)
sketch7.addGeometry(Part.LineSegment(Vector(40, 34.076803, 0), Vector(40, 41.263391, 0)), False)
sketch7.addGeometry(Part.LineSegment(Vector(40, 41.263391, 0), Vector(20, 20.61508, 0)), False)
sketch7.addGeometry(Part.LineSegment(Vector(20, 20.61508, 0), Vector(0.320655, 40.932342, 0)), False)
sketch7.addGeometry(Part.LineSegment(Vector(0.320655, 40.932342, 0), Vector(0, 41.263391, 0)), False)
sketch7.addGeometry(Part.LineSegment(Vector(0, 41.263391, 0), Vector(0, 34.076803, 0)), False)
sketch7.addGeometry(Part.LineSegment(Vector(0, 34.076803, 0), Vector(16.519527, 17.021786, 0)), False)
sketch7.addConstraint(Sketcher.Constraint("Coincident", 0, 2, 1, 1))
sketch7.addConstraint(Sketcher.Constraint("Coincident", 1, 2, 2, 1))
sketch7.addConstraint(Sketcher.Constraint("Tangent", 2, 2, 3, 1))
sketch7.addConstraint(Sketcher.Constraint("Coincident", 3, 2, 4, 1))
sketch7.addConstraint(Sketcher.Constraint("Coincident", 4, 2, 5, 1))
sketch7.addConstraint(Sketcher.Constraint("Coincident", 5, 2, 6, 1))
sketch7.addConstraint(Sketcher.Constraint("Tangent", 6, 2, 7, 1))
sketch7.addConstraint(Sketcher.Constraint("Coincident", 7, 2, 8, 1))
sketch7.addConstraint(Sketcher.Constraint("Coincident", 8, 2, 9, 1))
sketch7.addConstraint(Sketcher.Constraint("Coincident", 9, 2, 10, 1))
sketch7.addConstraint(Sketcher.Constraint("Coincident", 10, 2, 11, 1))
sketch7.addConstraint(Sketcher.Constraint("Coincident", 11, 2, 12, 1))
sketch7.addConstraint(Sketcher.Constraint("Coincident", 12, 2, 13, 1))
sketch7.addConstraint(Sketcher.Constraint("Coincident", 13, 2, 14, 1))
sketch7.addConstraint(Sketcher.Constraint("Coincident", 14, 2, 15, 1))
sketch7.addConstraint(Sketcher.Constraint("Coincident", 15, 2, 16, 1))
sketch7.addConstraint(Sketcher.Constraint("Coincident", 16, 2, 0, 1))
sketch7.addConstraint(Sketcher.Constraint("Horizontal", 3))
sketch7.addConstraint(Sketcher.Constraint("Horizontal", 6))
sketch7.addConstraint(Sketcher.Constraint("Vertical", 11))
sketch7.addConstraint(Sketcher.Constraint("Vertical", 15))
sketch7.addConstraint(Sketcher.Constraint("Equal", 2, 7))
sketch7.addConstraint(Sketcher.Constraint("PointOnObject", 2, 2, -1))
sketch7.addConstraint(Sketcher.Constraint("PointOnObject", 5, 2, -1))
sketch7.addConstraint(Sketcher.Constraint("PointOnObject", 14, 2, -2))
sketch7.addConstraint(Sketcher.Constraint("Perpendicular", 0, 1))
sketch7.addConstraint(Sketcher.Constraint("Perpendicular", 1, 4))
sketch7.addConstraint(Sketcher.Constraint("Parallel", 5, 9))
sketch7.addConstraint(Sketcher.Constraint("Parallel", 4, 10))
sketch7.addConstraint(Sketcher.Constraint("Parallel", 10, 12))
sketch7.addConstraint(Sketcher.Constraint("Parallel", 9, 13))
sketch7.addConstraint(Sketcher.Constraint("Parallel", 13, 14))
sketch7.addConstraint(Sketcher.Constraint("Parallel", 14, 16))
sketch7.addConstraint(Sketcher.Constraint("Horizontal", 0, 2, 8, 2))
sketch7.addConstraint(Sketcher.Constraint("Horizontal", 11, 2, 14, 2))
sketch7.addConstraint(Sketcher.Constraint("Horizontal", 10, 2, 15, 2))
sketch7.addConstraint(Sketcher.Constraint("Horizontal", 9, 2, 16, 2))
sketch7.addConstraint(Sketcher.Constraint("Vertical", 4, 2, 12, 2))
sketch7.addConstraint(Sketcher.Constraint("Equal", 3, 6))
sketch7.addConstraint(Sketcher.Constraint("Equal", 4, 5))
sketch7.addConstraint(Sketcher.Constraint("Radius", 2, 3.5))
sketch7.addConstraint(Sketcher.Constraint("DistanceX", -1, 1, 4, 2, 20.0))
sketch7.addConstraint(Sketcher.Constraint("DistanceX", 2, 3, 7, 3, 33.0))
sketch7.addConstraint(Sketcher.Constraint("Distance", 4, 18.695))
sketch7.addConstraint(Sketcher.Constraint("DistanceX", 3, 1, 3, 2, 3.493132))
sketch7.addConstraint(Sketcher.Constraint("DistanceY", 4, 2, 11, 2, 27.834898))
sketch7.addConstraint(Sketcher.Constraint("Distance", 1, 0.111631))
sketch7.addConstraint(Sketcher.Constraint("Distance", 13, 28.285469))
sketch7.addConstraint(Sketcher.Constraint("DistanceY", 11, 1, 11, 2, 7.186588))
sketch7.addConstraint(Sketcher.Constraint("DistanceX", -1, 1, 1, 2, 1.10531))
sketch7.addConstraint(Sketcher.Constraint("DistanceX", -1, 1, 7, 2, 37.224181))
sketch7.setExpression("Constraints[40]", "Params.sketch7_radius")
pad5 = body2.newObject("PartDesign::Pad", "Pad004")
pad5.Profile = sketch7
pad5.setExpression("Length", "Params.pad5_length")
pad5.Reversed = True
doc.recompute()

fillet = body2.newObject("PartDesign::Fillet", "Fillet")
fillet.Base = (pad5, edges_at(pad5, [
    (20, 20.615, 158),
    (23.48, 17.022, 158),
    (20, 13.428, 158),
    (16.52, 17.022, 158),
]))
fillet.setExpression("Radius", "Params.fillet_radius")

doc.recompute()
